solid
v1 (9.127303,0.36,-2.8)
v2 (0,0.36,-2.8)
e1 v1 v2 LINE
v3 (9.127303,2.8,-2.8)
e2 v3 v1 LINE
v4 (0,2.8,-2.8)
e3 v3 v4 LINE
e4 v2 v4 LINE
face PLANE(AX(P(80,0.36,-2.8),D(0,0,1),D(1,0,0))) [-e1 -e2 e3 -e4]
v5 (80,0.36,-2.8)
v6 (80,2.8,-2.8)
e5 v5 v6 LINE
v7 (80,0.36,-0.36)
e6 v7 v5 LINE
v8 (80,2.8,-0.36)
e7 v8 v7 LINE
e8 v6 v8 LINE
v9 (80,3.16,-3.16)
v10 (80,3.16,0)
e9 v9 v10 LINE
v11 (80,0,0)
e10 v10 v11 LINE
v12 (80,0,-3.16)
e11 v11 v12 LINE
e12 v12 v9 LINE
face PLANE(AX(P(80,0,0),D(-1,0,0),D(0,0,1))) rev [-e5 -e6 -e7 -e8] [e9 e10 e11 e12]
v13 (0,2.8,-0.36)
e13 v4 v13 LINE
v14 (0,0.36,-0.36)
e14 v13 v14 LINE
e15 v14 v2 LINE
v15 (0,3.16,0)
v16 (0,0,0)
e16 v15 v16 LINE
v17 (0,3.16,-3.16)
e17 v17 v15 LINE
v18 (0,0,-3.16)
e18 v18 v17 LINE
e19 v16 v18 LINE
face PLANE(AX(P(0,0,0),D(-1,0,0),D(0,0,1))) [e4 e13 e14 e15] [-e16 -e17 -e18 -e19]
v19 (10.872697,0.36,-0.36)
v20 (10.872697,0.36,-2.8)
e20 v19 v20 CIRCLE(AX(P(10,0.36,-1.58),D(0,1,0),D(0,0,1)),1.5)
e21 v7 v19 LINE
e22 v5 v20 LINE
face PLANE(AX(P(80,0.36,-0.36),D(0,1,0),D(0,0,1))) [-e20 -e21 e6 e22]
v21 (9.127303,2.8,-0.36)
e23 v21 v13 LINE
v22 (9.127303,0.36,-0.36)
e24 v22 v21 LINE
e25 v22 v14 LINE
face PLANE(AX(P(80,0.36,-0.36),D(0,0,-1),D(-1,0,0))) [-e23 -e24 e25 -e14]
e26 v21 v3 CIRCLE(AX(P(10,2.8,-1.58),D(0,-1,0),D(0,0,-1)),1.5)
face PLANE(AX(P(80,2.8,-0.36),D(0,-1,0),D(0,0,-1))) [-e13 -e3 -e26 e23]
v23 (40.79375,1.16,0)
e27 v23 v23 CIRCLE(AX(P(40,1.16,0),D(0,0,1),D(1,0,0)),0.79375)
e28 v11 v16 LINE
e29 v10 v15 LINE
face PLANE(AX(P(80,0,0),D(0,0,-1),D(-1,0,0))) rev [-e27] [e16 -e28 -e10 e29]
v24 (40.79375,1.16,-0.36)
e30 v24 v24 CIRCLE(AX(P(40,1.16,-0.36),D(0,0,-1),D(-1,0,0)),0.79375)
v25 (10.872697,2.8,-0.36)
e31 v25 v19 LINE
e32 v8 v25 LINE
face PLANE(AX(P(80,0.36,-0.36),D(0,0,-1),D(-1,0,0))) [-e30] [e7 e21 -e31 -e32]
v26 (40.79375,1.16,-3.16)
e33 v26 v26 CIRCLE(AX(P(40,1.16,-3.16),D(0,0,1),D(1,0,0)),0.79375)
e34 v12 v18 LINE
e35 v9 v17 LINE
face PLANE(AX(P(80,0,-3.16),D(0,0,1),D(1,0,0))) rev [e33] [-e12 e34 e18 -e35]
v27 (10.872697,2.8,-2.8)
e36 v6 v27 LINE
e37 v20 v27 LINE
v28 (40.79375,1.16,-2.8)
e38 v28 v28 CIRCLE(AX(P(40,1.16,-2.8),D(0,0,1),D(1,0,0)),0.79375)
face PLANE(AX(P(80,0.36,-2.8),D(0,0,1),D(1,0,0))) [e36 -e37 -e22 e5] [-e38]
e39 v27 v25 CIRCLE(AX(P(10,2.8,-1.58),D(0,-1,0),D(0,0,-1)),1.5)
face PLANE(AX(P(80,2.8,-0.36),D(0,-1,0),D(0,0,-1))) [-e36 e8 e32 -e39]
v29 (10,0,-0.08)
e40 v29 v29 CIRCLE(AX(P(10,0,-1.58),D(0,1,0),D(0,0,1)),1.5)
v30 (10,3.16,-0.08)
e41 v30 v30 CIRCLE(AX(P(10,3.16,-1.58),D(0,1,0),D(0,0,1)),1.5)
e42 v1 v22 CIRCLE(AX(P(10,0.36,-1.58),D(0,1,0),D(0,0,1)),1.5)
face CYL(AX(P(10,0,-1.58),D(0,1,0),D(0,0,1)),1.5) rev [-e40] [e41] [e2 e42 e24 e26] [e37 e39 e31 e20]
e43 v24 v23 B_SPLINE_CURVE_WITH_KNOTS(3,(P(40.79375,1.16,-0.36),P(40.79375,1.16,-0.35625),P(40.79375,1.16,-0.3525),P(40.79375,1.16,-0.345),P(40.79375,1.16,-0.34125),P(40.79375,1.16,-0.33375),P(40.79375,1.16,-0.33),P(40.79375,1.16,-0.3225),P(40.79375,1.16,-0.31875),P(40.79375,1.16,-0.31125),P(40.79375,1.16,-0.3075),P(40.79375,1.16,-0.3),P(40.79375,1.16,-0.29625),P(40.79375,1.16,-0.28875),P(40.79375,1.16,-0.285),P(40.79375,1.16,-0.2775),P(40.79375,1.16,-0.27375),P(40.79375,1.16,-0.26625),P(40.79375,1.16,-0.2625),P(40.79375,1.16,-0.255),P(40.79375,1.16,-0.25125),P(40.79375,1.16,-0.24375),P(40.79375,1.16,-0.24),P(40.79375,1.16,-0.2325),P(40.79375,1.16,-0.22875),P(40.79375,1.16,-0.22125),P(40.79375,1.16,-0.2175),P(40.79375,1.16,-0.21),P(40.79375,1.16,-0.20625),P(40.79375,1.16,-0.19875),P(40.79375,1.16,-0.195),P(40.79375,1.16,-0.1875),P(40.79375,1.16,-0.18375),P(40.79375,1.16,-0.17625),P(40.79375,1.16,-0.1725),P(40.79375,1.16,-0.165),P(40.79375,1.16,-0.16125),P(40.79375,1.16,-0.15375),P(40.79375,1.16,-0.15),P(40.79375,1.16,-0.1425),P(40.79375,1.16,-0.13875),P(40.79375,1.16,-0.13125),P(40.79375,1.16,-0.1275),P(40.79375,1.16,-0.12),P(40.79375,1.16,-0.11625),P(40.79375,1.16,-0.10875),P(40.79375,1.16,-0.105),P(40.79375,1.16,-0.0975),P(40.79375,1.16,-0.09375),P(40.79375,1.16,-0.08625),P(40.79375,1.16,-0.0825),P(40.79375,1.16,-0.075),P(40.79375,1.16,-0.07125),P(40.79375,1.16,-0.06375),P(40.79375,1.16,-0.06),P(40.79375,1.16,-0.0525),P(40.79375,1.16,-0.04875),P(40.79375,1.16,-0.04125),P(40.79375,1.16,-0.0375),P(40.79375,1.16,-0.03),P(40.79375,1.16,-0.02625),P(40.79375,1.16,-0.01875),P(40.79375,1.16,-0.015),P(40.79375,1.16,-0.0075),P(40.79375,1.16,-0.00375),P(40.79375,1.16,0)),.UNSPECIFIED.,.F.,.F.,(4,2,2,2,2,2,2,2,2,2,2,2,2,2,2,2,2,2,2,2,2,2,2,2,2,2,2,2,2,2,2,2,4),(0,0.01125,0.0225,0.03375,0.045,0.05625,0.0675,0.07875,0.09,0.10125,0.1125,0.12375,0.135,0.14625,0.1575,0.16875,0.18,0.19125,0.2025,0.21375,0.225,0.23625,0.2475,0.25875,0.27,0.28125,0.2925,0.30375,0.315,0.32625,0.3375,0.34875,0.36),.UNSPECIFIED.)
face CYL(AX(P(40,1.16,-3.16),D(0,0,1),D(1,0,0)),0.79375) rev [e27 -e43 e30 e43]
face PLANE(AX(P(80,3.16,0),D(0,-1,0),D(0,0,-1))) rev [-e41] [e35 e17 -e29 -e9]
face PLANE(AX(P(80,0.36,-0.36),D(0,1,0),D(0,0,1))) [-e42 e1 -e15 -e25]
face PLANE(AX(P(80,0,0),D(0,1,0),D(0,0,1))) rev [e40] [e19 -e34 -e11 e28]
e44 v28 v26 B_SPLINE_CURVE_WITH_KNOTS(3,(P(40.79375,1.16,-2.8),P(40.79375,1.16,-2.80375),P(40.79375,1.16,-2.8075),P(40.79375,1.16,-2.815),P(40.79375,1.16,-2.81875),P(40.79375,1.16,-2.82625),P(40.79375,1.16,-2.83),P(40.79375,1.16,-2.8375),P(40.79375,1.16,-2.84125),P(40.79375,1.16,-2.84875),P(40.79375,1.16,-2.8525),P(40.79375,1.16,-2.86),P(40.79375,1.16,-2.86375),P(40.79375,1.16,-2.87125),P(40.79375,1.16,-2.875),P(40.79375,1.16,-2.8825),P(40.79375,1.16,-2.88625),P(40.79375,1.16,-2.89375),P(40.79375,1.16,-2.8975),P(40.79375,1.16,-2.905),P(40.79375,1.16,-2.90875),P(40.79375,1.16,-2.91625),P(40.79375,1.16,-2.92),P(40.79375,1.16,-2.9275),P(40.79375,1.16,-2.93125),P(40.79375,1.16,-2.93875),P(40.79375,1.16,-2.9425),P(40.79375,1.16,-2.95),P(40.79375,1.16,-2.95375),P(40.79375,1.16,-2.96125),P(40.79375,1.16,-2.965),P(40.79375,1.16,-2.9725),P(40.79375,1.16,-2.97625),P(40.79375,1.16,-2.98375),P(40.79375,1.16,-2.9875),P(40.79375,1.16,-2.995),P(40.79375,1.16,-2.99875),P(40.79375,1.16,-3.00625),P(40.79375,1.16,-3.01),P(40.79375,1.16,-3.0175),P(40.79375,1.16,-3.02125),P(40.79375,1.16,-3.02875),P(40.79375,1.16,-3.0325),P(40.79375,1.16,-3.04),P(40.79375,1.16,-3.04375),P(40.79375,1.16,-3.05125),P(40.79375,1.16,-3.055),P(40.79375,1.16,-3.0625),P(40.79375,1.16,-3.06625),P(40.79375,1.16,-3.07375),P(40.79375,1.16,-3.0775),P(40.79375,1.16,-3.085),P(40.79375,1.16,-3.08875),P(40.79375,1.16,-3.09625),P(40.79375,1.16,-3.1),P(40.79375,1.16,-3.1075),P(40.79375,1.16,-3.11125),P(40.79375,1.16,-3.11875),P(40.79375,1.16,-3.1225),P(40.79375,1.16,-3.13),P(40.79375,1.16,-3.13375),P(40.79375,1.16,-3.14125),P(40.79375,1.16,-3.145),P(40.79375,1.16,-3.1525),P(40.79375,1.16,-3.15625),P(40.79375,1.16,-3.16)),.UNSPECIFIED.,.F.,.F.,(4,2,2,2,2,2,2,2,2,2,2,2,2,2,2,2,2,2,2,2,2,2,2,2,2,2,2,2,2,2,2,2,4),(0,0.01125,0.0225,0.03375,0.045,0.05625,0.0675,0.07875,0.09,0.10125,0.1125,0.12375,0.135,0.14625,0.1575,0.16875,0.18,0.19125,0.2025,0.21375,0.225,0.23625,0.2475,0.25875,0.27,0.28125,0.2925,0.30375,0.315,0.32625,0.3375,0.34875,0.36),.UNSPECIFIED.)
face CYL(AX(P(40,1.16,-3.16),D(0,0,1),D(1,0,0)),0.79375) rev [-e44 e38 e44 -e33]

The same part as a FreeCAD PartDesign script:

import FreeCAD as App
import Part
import Sketcher

V = App.Vector


def add_polygon(sketch, points):
    """Adds a closed chain of lines whose ends are joined by coincident constraints."""
    first, n = sketch.GeometryCount, len(points)
    for a, b in zip(points, points[1:] + points[:1]):
        sketch.addGeometry(Part.LineSegment(App.Vector(*a, 0), App.Vector(*b, 0)), False)
    for i in range(n):
        sketch.addConstraint(Sketcher.Constraint("Coincident", first + i, 2, first + (i + 1) % n, 1))

doc = App.newDocument("Part")
params = doc.addObject("Spreadsheet::Sheet", "Params")
for row, (alias, value) in enumerate([
    ("sketch1_width", "3.16 mm"),
    ("sketch1_width2", "2.44 mm"),
    ("pad1_length", "80 mm"),
    ("sketch3_diameter", "3 mm"),
], start=1):
    params.set(f"A{row}", alias)
    params.set(f"B{row}", "=" + value)
    params.setAlias(f"B{row}", alias)

body = doc.addObject("PartDesign::Body", "Body")

# Sketch on YZ plane
sketch1 = doc.addObject("Sketcher::SketchObject", "Sketch")
body.addObject(sketch1)
sketch1.AttachmentSupport = (doc.YZ_Plane, [""])
sketch1.MapMode = "FlatFace"
add_polygon(sketch1, [(3.2, 0), (0, 0), (0, -3.2), (3.2, -3.2)])  # lines 0-3
add_polygon(sketch1, [(0.4, -2.8), (0.4, -0.4), (2.8, -0.4), (2.8, -2.8)])  # lines 4-7
sketch1.addConstraint([
    Sketcher.Constraint("Horizontal", 0),
    Sketcher.Constraint("Vertical", 1),
    Sketcher.Constraint("Horizontal", 2),
    Sketcher.Constraint("Vertical", 3),
    Sketcher.Constraint("Vertical", 4),
    Sketcher.Constraint("Horizontal", 5),
    Sketcher.Constraint("Vertical", 6),
    Sketcher.Constraint("Horizontal", 7),
    Sketcher.Constraint("Coincident", 0, 2, -1, 1),
    Sketcher.Constraint("Equal", 2, 1),
    Sketcher.Constraint("Equal", 7, 4),
    Sketcher.Constraint("DistanceX", 0, 2, 0, 1, 3.16),
    Sketcher.Constraint("DistanceX", 5, 1, 5, 2, 2.44),
    Sketcher.Constraint("DistanceX", -1, 1, 5, 2, 2.8),
    Sketcher.Constraint("DistanceY", 6, 2, -1, 1, 2.8),
])
sketch1.setExpression("Constraints[19]", "Params.sketch1_width")
sketch1.setExpression("Constraints[20]", "Params.sketch1_width2")
pad1 = doc.addObject("PartDesign::Pad", "Pad")
body.addObject(pad1)
pad1.Profile = sketch1
pad1.setExpression("Length", "Params.pad1_length")

# Sketch on XY plane
sketch2 = doc.addObject("Sketcher::SketchObject", "Sketch001")
body.addObject(sketch2)
sketch2.AttachmentSupport = (doc.XY_Plane, [""])
sketch2.MapMode = "FlatFace"
sketch2.addGeometry(Part.Circle(V(40, 1.2, 0), V(0, 0, 1), 0.8), False)
sketch2.addConstraint([
    Sketcher.Constraint("DistanceX", -1, 1, 0, 3, 40.0),
    Sketcher.Constraint("Diameter", 0, 1.5875),
    Sketcher.Constraint("DistanceY", -1, 1, 0, 3, 1.16),
])
pocket1 = doc.addObject("PartDesign::Pocket", "Pocket")
body.addObject(pocket1)
pocket1.Profile = sketch2
pocket1.Type = "ThroughAll"

# Sketch on XZ plane
sketch3 = doc.addObject("Sketcher::SketchObject", "Sketch002")
body.addObject(sketch3)
sketch3.AttachmentSupport = (doc.XZ_Plane, [""])
sketch3.MapMode = "FlatFace"
sketch3.AttachmentOffset = App.Placement(V(0, 0, -3.16), App.Rotation())
sketch3.addGeometry(Part.Circle(V(10, -1.6, 0), V(0, 0, 1), 1.5), False)
sketch3.addConstraint([
    Sketcher.Constraint("Diameter", 0, 3.0),
    Sketcher.Constraint("DistanceX", -1, 1, 0, 3, 10.0),
    Sketcher.Constraint("DistanceY", 0, 3, -1, 1, 1.58),
])
sketch3.setExpression("Constraints[0]", "Params.sketch3_diameter")
pocket2 = doc.addObject("PartDesign::Pocket", "Pocket001")
body.addObject(pocket2)
pocket2.Profile = sketch3
pocket2.Type = "ThroughAll"
pocket2.Reversed = True

doc.recompute()
